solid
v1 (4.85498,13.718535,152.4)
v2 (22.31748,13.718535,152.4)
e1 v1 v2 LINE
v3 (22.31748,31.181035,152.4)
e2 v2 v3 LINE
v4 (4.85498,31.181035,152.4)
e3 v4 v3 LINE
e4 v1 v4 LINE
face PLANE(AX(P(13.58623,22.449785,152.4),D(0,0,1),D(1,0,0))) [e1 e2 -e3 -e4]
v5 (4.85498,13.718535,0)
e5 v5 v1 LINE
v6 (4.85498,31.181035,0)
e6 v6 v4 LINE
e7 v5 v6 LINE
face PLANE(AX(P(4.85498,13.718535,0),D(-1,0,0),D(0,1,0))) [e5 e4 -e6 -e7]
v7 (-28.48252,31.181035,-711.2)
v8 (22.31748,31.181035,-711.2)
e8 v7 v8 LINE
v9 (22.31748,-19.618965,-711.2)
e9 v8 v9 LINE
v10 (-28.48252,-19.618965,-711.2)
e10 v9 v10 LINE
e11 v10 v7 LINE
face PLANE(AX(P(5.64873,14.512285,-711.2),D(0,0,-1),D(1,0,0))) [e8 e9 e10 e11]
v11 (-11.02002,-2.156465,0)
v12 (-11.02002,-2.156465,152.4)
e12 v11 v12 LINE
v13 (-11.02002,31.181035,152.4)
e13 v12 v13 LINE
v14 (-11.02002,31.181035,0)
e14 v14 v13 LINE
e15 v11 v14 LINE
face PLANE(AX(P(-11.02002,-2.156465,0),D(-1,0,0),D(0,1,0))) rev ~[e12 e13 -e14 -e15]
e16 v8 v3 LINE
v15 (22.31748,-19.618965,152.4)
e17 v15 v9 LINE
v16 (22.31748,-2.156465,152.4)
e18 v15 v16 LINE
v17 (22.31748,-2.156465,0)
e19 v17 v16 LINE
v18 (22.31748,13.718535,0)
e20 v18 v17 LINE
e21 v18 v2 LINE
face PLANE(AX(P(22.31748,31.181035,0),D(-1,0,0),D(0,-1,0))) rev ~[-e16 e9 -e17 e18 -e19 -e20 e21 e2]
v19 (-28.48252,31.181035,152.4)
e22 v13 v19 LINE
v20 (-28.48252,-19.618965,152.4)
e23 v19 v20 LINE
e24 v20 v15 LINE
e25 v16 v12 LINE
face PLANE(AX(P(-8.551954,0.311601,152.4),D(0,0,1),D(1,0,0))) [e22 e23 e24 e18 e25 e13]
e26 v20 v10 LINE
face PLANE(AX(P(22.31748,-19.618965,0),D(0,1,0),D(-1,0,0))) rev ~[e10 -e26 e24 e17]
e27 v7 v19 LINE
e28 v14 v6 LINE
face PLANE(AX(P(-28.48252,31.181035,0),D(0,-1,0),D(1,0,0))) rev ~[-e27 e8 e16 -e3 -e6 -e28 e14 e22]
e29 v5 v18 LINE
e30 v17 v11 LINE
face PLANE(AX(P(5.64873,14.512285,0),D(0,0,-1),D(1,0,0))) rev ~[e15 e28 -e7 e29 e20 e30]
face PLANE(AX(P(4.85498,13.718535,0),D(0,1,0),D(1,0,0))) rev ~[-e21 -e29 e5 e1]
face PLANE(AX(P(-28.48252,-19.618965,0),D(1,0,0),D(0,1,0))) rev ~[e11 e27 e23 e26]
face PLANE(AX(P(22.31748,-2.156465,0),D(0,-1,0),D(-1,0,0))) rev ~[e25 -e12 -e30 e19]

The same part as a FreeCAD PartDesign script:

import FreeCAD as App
import Part
import Sketcher
Q = App.Units.Quantity


def add_polygon(sketch, points):
    """Adds a closed chain of lines whose ends are joined by coincident constraints."""
    first, n = sketch.GeometryCount, len(points)
    for a, b in zip(points, points[1:] + points[:1]):
        sketch.addGeometry(Part.LineSegment(App.Vector(*a, 0), App.Vector(*b, 0)), False)
    for i in range(n):
        sketch.addConstraint(Sketcher.Constraint("Coincident", first + i, 2, first + (i + 1) % n, 1))

doc = App.newDocument("Part")
body = doc.addObject("PartDesign::Body", "Body")
body.AllowCompound = True

# Sketch on XY plane
sketch1 = body.newObject("Sketcher::SketchObject", "Sketch")
sketch1.AttachmentSupport = (doc.getObject("XY_Plane"), [""])
sketch1.MapMode = "FlatFace"
add_polygon(sketch1, [(-28, 31), (-28, -20), (22, -20), (22, -2), (-11, -2), (-11, 31)])  # lines 0-5
add_polygon(sketch1, [(5, 31), (5, 14), (22, 14), (22, 31)])  # lines 6-9
sketch1.addConstraint([
    Sketcher.Constraint("Vertical", 0),
    Sketcher.Constraint("Horizontal", 1),
    Sketcher.Constraint("Vertical", 2),
    Sketcher.Constraint("Horizontal", 3),
    Sketcher.Constraint("Vertical", 4),
    Sketcher.Constraint("Horizontal", 5),
    Sketcher.Constraint("Vertical", 6),
    Sketcher.Constraint("Horizontal", 7),
    Sketcher.Constraint("Vertical", 8),
    Sketcher.Constraint("Horizontal", 9),
    Sketcher.Constraint("Horizontal", 5, 2, 8, 2),
    Sketcher.Constraint("Vertical", 2, 2, 7, 2),
    Sketcher.Constraint("Equal", 5, 7),
    Sketcher.Constraint("Equal", 1, 0),
    Sketcher.Constraint("Equal", 9, 2),
    Sketcher.Constraint("Equal", 2, 6),
    Sketcher.Constraint("DistanceX", 1, 1, 1, 2, Q("2 in")),
    Sketcher.Constraint("DistanceX", 3, 2, 3, 1, Q("1.3125 in")),
    Sketcher.Constraint("DistanceY", 0, 2, -1, 1, Q("0.7724002 in")),
    Sketcher.Constraint("DistanceX", 0, 2, -1, 1, Q("28.48252 mm")),
])
pad1 = body.newObject("PartDesign::Pad", "Pad")
pad1.Profile = sketch1
pad1.Length = Q("6 in")

# Sketch on XY plane
sketch2 = body.newObject("Sketcher::SketchObject", "Sketch001")
sketch2.AttachmentSupport = (doc.getObject("XY_Plane"), [""])
sketch2.MapMode = "FlatFace"
add_polygon(sketch2, [(22, 31), (22, -20), (-28, -20), (-28, 31)])  # lines 0-3
sketch2.addConstraint([
    Sketcher.Constraint("Vertical", 0),
    Sketcher.Constraint("Horizontal", 1),
    Sketcher.Constraint("Vertical", 2),
    Sketcher.Constraint("Horizontal", 3),
    Sketcher.Constraint("Equal", 3, 0),
    Sketcher.Constraint("DistanceX", 1, 2, 1, 1, Q("2 in")),
    Sketcher.Constraint("DistanceY", 0, 2, -1, 1, Q("0.7724002 in")),
    Sketcher.Constraint("DistanceX", -1, 1, 0, 2, Q("22.31748 mm")),
])
pad2 = body.newObject("PartDesign::Pad", "Pad001")
pad2.Profile = sketch2
pad2.Length = Q("28 in")
pad2.Reversed = True

doc.recompute()
